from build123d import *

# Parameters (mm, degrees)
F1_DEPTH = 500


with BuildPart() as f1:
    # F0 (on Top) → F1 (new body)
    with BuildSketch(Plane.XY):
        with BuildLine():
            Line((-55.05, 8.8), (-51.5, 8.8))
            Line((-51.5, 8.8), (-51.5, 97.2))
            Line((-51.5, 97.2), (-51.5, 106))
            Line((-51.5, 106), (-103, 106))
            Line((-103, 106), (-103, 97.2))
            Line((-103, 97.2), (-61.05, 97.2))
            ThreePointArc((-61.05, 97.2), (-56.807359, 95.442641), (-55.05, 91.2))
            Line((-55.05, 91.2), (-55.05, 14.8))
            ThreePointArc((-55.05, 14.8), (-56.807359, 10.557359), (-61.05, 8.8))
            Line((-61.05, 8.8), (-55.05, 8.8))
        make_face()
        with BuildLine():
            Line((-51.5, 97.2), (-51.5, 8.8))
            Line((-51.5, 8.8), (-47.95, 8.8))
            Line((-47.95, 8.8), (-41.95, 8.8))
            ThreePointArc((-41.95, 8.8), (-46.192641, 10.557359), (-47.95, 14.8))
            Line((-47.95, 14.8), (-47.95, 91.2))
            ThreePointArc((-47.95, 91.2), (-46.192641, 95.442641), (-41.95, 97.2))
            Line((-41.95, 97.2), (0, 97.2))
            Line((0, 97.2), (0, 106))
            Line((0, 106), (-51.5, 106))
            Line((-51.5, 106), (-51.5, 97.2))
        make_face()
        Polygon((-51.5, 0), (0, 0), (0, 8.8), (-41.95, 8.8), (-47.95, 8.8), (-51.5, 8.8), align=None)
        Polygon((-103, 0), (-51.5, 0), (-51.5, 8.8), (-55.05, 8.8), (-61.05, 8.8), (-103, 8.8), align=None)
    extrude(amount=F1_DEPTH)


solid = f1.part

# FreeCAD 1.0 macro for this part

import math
import FreeCAD as App
import Part
import Sketcher

doc = App.newDocument("Part")
body = doc.addObject("PartDesign::Body", "Body")

sketch1 = doc.addObject("Sketcher::SketchObject", "Sketch")
body.addObject(sketch1)
sketch1.AttachmentSupport = (doc.XY_Plane, [""])
sketch1.MapMode = "FlatFace"
sketch1.addGeometry(Part.LineSegment(App.Vector(-103, 106, 0), App.Vector(-103, 97.2, 0)), False)
sketch1.addGeometry(Part.LineSegment(App.Vector(-103, 97.2, 0), App.Vector(-61.05, 97.2, 0)), False)
sketch1.addGeometry(Part.ArcOfCircle(Part.Circle(App.Vector(-61.049999, 91.200001, 0), App.Vector(0, 0, 1), 5.999999), math.radians(-0.00001), math.radians(90.00001)), False)
sketch1.addGeometry(Part.LineSegment(App.Vector(-55.05, 91.2, 0), App.Vector(-55.05, 14.8, 0)), False)
sketch1.addGeometry(Part.ArcOfCircle(Part.Circle(App.Vector(-61.049999, 14.799999, 0), App.Vector(0, 0, 1), 5.999999), math.radians(-90.00001), math.radians(0.00001)), False)
sketch1.addGeometry(Part.LineSegment(App.Vector(-61.05, 8.8, 0), App.Vector(-103, 8.8, 0)), False)
sketch1.addGeometry(Part.LineSegment(App.Vector(-103, 8.8, 0), App.Vector(-103, 0, 0)), False)
sketch1.addGeometry(Part.LineSegment(App.Vector(-103, 0, 0), App.Vector(0, 0, 0)), False)
sketch1.addGeometry(Part.LineSegment(App.Vector(0, 0, 0), App.Vector(0, 8.8, 0)), False)
sketch1.addGeometry(Part.LineSegment(App.Vector(0, 8.8, 0), App.Vector(-41.95, 8.8, 0)), False)
sketch1.addGeometry(Part.ArcOfCircle(Part.Circle(App.Vector(-41.950001, 14.799999, 0), App.Vector(0, 0, 1), 5.999999), math.radians(179.99999), math.radians(270.00001)), False)
sketch1.addGeometry(Part.LineSegment(App.Vector(-47.95, 14.8, 0), App.Vector(-47.95, 91.2, 0)), False)
sketch1.addGeometry(Part.ArcOfCircle(Part.Circle(App.Vector(-41.950001, 91.200001, 0), App.Vector(0, 0, 1), 5.999999), math.radians(89.99999), math.radians(180.00001)), False)
sketch1.addGeometry(Part.LineSegment(App.Vector(-41.95, 97.2, 0), App.Vector(0, 97.2, 0)), False)
sketch1.addGeometry(Part.LineSegment(App.Vector(0, 97.2, 0), App.Vector(0, 106, 0)), False)
sketch1.addGeometry(Part.LineSegment(App.Vector(0, 106, 0), App.Vector(-103, 106, 0)), False)
sketch1.addConstraint(Sketcher.Constraint("Coincident", 0, 2, 1, 1))
sketch1.addConstraint(Sketcher.Constraint("Tangent", 1, 2, 2, 2))
sketch1.addConstraint(Sketcher.Constraint("Tangent", 2, 1, 3, 1))
sketch1.addConstraint(Sketcher.Constraint("Tangent", 3, 2, 4, 2))
sketch1.addConstraint(Sketcher.Constraint("Tangent", 4, 1, 5, 1))
sketch1.addConstraint(Sketcher.Constraint("Coincident", 5, 2, 6, 1))
sketch1.addConstraint(Sketcher.Constraint("Coincident", 6, 2, 7, 1))
sketch1.addConstraint(Sketcher.Constraint("Coincident", 7, 2, 8, 1))
sketch1.addConstraint(Sketcher.Constraint("Coincident", 8, 2, 9, 1))
sketch1.addConstraint(Sketcher.Constraint("Tangent", 9, 2, 10, 2))
sketch1.addConstraint(Sketcher.Constraint("Tangent", 10, 1, 11, 1))
sketch1.addConstraint(Sketcher.Constraint("Tangent", 11, 2, 12, 2))
sketch1.addConstraint(Sketcher.Constraint("Tangent", 12, 1, 13, 1))
sketch1.addConstraint(Sketcher.Constraint("Coincident", 13, 2, 14, 1))
sketch1.addConstraint(Sketcher.Constraint("Coincident", 14, 2, 15, 1))
sketch1.addConstraint(Sketcher.Constraint("Coincident", 15, 2, 0, 1))
sketch1.addConstraint(Sketcher.Constraint("Vertical", 0))
sketch1.addConstraint(Sketcher.Constraint("Horizontal", 1))
sketch1.addConstraint(Sketcher.Constraint("Vertical", 3))
sketch1.addConstraint(Sketcher.Constraint("Horizontal", 5))
sketch1.addConstraint(Sketcher.Constraint("Vertical", 6))
sketch1.addConstraint(Sketcher.Constraint("Horizontal", 7))
sketch1.addConstraint(Sketcher.Constraint("Vertical", 8))
sketch1.addConstraint(Sketcher.Constraint("Horizontal", 9))
sketch1.addConstraint(Sketcher.Constraint("Vertical", 11))
sketch1.addConstraint(Sketcher.Constraint("Horizontal", 13))
sketch1.addConstraint(Sketcher.Constraint("Vertical", 14))
sketch1.addConstraint(Sketcher.Constraint("Horizontal", 15))
sketch1.addConstraint(Sketcher.Constraint("Coincident", 7, 2, -1, 1))
sketch1.addConstraint(Sketcher.Constraint("Equal", 2, 4))
sketch1.addConstraint(Sketcher.Constraint("Equal", 4, 10))
sketch1.addConstraint(Sketcher.Constraint("Equal", 10, 12))
sketch1.addConstraint(Sketcher.Constraint("PointOnObject", 13, 2, -2))
sketch1.addConstraint(Sketcher.Constraint("Horizontal", 4, 3, 10, 3))
sketch1.addConstraint(Sketcher.Constraint("Horizontal", 2, 3, 12, 3))
sketch1.addConstraint(Sketcher.Constraint("Vertical", 0, 2, 5, 2))
sketch1.addConstraint(Sketcher.Constraint("Equal", 5, 9))
sketch1.addConstraint(Sketcher.Constraint("Equal", 0, 6))
sketch1.addConstraint(Sketcher.Constraint("Radius", 2, 5.999999))
sketch1.addConstraint(Sketcher.Constraint("DistanceX", 7, 1, 7, 2, 103.0))
sketch1.addConstraint(Sketcher.Constraint("DistanceY", 0, 2, 0, 1, 8.8))
sketch1.addConstraint(Sketcher.Constraint("DistanceY", 3, 2, 3, 1, 76.4))
sketch1.addConstraint(Sketcher.Constraint("DistanceX", 1, 1, 1, 2, 41.95))
pad1 = doc.addObject("PartDesign::Pad", "Pad")
body.addObject(pad1)
pad1.Profile = sketch1
pad1.Length = 500

doc.recompute()
